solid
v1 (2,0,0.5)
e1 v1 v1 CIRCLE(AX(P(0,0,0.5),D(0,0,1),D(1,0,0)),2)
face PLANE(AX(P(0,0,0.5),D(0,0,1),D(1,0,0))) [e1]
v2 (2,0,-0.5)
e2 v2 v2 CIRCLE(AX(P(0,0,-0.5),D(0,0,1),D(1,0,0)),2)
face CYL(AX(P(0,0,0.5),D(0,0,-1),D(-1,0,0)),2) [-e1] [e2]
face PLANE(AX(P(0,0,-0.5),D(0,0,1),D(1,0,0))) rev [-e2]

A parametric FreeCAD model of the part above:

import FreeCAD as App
import Part
import Sketcher

V = App.Vector
Q = App.Units.Quantity

doc = App.newDocument("Part")
body = doc.addObject("PartDesign::Body", "Body")

sketch1 = doc.addObject("Sketcher::SketchObject", "Sketch")
body.addObject(sketch1)
sketch1.AttachmentSupport = (doc.XY_Plane, [""])
sketch1.MapMode = "FlatFace"
sketch1.addGeometry(Part.Circle(V(0, 0, 0), V(0, 0, 1), 2), False)
sketch1.addConstraint([
    Sketcher.Constraint("Coincident", 0, 3, -1, 1),
    Sketcher.Constraint("Diameter", 0, Q("4 mm")),
])
pad1 = doc.addObject("PartDesign::Pad", "Pad")
body.addObject(pad1)
pad1.Profile = sketch1
pad1.Length = 1
pad1.Midplane = True

doc.recompute()
